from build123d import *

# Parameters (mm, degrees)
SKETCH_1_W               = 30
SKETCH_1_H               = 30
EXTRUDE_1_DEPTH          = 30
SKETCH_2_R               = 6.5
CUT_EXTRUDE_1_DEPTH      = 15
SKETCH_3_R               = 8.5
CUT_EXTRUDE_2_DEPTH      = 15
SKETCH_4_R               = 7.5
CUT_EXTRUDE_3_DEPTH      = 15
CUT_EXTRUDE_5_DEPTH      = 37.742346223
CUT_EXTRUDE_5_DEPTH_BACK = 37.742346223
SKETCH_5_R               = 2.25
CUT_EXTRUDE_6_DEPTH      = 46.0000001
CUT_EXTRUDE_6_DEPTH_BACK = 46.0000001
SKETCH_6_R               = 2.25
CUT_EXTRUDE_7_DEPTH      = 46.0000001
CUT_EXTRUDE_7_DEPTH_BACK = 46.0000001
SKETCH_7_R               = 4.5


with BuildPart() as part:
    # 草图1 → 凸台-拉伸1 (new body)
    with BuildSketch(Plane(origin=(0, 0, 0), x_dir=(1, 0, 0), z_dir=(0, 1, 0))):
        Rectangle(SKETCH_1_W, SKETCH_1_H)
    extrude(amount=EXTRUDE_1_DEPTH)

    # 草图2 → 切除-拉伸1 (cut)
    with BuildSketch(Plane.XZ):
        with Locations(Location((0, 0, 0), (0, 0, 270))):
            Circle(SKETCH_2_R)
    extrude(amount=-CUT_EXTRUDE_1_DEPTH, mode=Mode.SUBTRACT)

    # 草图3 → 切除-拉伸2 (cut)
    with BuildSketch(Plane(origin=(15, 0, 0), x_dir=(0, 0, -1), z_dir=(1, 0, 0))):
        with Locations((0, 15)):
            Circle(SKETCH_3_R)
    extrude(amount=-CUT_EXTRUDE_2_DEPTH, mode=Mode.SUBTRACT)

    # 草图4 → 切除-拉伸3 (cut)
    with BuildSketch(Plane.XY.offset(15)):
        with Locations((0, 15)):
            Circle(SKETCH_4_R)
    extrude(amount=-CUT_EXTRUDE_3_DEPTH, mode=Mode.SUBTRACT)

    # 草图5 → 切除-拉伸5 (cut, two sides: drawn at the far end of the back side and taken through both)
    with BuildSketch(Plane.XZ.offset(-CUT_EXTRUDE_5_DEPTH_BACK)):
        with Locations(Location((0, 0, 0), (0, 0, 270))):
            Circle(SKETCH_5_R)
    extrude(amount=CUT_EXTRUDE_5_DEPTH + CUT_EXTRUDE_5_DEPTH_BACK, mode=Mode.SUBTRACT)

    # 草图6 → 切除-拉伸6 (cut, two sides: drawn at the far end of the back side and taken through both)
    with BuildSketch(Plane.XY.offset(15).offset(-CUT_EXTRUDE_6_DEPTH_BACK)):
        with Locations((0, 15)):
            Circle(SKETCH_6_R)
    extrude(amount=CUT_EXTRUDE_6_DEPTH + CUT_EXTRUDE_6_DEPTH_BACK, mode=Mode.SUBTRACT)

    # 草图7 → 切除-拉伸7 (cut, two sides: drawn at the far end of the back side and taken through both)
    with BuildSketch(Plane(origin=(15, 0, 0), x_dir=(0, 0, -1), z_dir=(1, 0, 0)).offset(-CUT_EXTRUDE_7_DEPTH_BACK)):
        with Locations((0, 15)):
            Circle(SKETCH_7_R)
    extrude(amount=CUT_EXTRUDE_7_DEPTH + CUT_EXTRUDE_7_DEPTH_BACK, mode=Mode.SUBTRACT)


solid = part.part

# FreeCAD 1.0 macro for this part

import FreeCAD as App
import Part
import Sketcher

V = App.Vector

doc = App.newDocument("Part")
body = doc.addObject("PartDesign::Body", "Body")

sketch1 = body.newObject("Sketcher::SketchObject", "Sketch")
sketch1.AttachmentSupport = (doc.getObject("XZ_Plane"), [""])
sketch1.MapMode = "FlatFace"
sketch1.addGeometry([
    Part.LineSegment(V(-15, -15, 0), V(-15, 15, 0)),
    Part.LineSegment(V(-15, 15, 0), V(15, 15, 0)),
    Part.LineSegment(V(15, 15, 0), V(15, -15, 0)),
    Part.LineSegment(V(15, -15, 0), V(-15, -15, 0)),
], False)
sketch1.addConstraint([
    Sketcher.Constraint("Coincident", 0, 2, 1, 1),
    Sketcher.Constraint("Coincident", 1, 2, 2, 1),
    Sketcher.Constraint("Coincident", 2, 2, 3, 1),
    Sketcher.Constraint("Coincident", 3, 2, 0, 1),
    Sketcher.Constraint("Vertical", 0),
    Sketcher.Constraint("Horizontal", 1),
    Sketcher.Constraint("Vertical", 2),
    Sketcher.Constraint("Horizontal", 3),
    Sketcher.Constraint("Symmetric", 0, 2, 2, 2, -1, 1),
    Sketcher.Constraint("Equal", 3, 0),
    Sketcher.Constraint("DistanceX", 1, 1, 1, 2, 30.0),
])
pad1 = body.newObject("PartDesign::Pad", "Pad")
pad1.Profile = sketch1
pad1.Length = 30
pad1.Reversed = True

sketch2 = body.newObject("Sketcher::SketchObject", "Sketch001")
sketch2.AttachmentSupport = (doc.getObject("XZ_Plane"), [""])
sketch2.MapMode = "FlatFace"
sketch2.addGeometry(Part.Circle(V(0, 0, 0), V(0, 0, 1), 6.5), False)
sketch2.addConstraint([
    Sketcher.Constraint("Coincident", 0, 3, -1, 1),
    Sketcher.Constraint("Diameter", 0, 13.0),
])
pocket1 = body.newObject("PartDesign::Pocket", "Pocket")
pocket1.Profile = sketch2
pocket1.Length = 15

sketch3 = body.newObject("Sketcher::SketchObject", "Sketch002")
sketch3.AttachmentSupport = (doc.getObject("YZ_Plane"), [""])
sketch3.MapMode = "FlatFace"
sketch3.AttachmentOffset = App.Placement(V(0, 0, 15), App.Rotation())
sketch3.addGeometry(Part.Circle(V(15, 0, 0), V(0, 0, 1), 8.5), False)
sketch3.addConstraint([
    Sketcher.Constraint("PointOnObject", 0, 3, -1),
    Sketcher.Constraint("Diameter", 0, 17.0),
    Sketcher.Constraint("DistanceX", -1, 1, 0, 3, 15.0),
])
pocket2 = body.newObject("PartDesign::Pocket", "Pocket001")
pocket2.Profile = sketch3
pocket2.Length = 15

sketch4 = body.newObject("Sketcher::SketchObject", "Sketch003")
sketch4.AttachmentSupport = (doc.getObject("XY_Plane"), [""])
sketch4.MapMode = "FlatFace"
sketch4.AttachmentOffset = App.Placement(V(0, 0, 15), App.Rotation())
sketch4.addGeometry(Part.Circle(V(0, 15, 0), V(0, 0, 1), 7.5), False)
sketch4.addConstraint([
    Sketcher.Constraint("PointOnObject", 0, 3, -2),
    Sketcher.Constraint("Diameter", 0, 15.0),
    Sketcher.Constraint("DistanceY", -1, 1, 0, 3, 15.0),
])
pocket3 = body.newObject("PartDesign::Pocket", "Pocket002")
pocket3.Profile = sketch4
pocket3.Length = 15

sketch5 = body.newObject("Sketcher::SketchObject", "Sketch004")
sketch5.AttachmentSupport = (doc.getObject("XZ_Plane"), [""])
sketch5.MapMode = "FlatFace"
sketch5.addGeometry(Part.Circle(V(0, 0, 0), V(0, 0, 1), 2.25), False)
sketch5.addConstraint([
    Sketcher.Constraint("Coincident", 0, 3, -1, 1),
    Sketcher.Constraint("Diameter", 0, 4.5),
])
pocket4 = body.newObject("PartDesign::Pocket", "Pocket003")
pocket4.Profile = sketch5
pocket4.Type = "ThroughAll"
pocket4.Midplane = True

sketch6 = body.newObject("Sketcher::SketchObject", "Sketch005")
sketch6.AttachmentSupport = (doc.getObject("XY_Plane"), [""])
sketch6.MapMode = "FlatFace"
sketch6.AttachmentOffset = App.Placement(V(0, 0, 15), App.Rotation())
sketch6.addGeometry(Part.Circle(V(0, 15, 0), V(0, 0, 1), 2.25), False)
sketch6.addConstraint([
    Sketcher.Constraint("PointOnObject", 0, 3, -2),
    Sketcher.Constraint("Diameter", 0, 4.5),
    Sketcher.Constraint("DistanceY", -1, 1, 0, 3, 15.0),
])
pocket5 = body.newObject("PartDesign::Pocket", "Pocket004")
pocket5.Profile = sketch6
pocket5.Type = "ThroughAll"
pocket5.Midplane = True

sketch7 = body.newObject("Sketcher::SketchObject", "Sketch006")
sketch7.AttachmentSupport = (doc.getObject("YZ_Plane"), [""])
sketch7.MapMode = "FlatFace"
sketch7.AttachmentOffset = App.Placement(V(0, 0, 15), App.Rotation())
sketch7.addGeometry(Part.Circle(V(15, 0, 0), V(0, 0, 1), 4.5), False)
sketch7.addConstraint([
    Sketcher.Constraint("PointOnObject", 0, 3, -1),
    Sketcher.Constraint("Diameter", 0, 9.0),
    Sketcher.Constraint("DistanceX", -1, 1, 0, 3, 15.0),
])
pocket6 = body.newObject("PartDesign::Pocket", "Pocket005")
pocket6.Profile = sketch7
pocket6.Type = "ThroughAll"
pocket6.Midplane = True

doc.recompute()
